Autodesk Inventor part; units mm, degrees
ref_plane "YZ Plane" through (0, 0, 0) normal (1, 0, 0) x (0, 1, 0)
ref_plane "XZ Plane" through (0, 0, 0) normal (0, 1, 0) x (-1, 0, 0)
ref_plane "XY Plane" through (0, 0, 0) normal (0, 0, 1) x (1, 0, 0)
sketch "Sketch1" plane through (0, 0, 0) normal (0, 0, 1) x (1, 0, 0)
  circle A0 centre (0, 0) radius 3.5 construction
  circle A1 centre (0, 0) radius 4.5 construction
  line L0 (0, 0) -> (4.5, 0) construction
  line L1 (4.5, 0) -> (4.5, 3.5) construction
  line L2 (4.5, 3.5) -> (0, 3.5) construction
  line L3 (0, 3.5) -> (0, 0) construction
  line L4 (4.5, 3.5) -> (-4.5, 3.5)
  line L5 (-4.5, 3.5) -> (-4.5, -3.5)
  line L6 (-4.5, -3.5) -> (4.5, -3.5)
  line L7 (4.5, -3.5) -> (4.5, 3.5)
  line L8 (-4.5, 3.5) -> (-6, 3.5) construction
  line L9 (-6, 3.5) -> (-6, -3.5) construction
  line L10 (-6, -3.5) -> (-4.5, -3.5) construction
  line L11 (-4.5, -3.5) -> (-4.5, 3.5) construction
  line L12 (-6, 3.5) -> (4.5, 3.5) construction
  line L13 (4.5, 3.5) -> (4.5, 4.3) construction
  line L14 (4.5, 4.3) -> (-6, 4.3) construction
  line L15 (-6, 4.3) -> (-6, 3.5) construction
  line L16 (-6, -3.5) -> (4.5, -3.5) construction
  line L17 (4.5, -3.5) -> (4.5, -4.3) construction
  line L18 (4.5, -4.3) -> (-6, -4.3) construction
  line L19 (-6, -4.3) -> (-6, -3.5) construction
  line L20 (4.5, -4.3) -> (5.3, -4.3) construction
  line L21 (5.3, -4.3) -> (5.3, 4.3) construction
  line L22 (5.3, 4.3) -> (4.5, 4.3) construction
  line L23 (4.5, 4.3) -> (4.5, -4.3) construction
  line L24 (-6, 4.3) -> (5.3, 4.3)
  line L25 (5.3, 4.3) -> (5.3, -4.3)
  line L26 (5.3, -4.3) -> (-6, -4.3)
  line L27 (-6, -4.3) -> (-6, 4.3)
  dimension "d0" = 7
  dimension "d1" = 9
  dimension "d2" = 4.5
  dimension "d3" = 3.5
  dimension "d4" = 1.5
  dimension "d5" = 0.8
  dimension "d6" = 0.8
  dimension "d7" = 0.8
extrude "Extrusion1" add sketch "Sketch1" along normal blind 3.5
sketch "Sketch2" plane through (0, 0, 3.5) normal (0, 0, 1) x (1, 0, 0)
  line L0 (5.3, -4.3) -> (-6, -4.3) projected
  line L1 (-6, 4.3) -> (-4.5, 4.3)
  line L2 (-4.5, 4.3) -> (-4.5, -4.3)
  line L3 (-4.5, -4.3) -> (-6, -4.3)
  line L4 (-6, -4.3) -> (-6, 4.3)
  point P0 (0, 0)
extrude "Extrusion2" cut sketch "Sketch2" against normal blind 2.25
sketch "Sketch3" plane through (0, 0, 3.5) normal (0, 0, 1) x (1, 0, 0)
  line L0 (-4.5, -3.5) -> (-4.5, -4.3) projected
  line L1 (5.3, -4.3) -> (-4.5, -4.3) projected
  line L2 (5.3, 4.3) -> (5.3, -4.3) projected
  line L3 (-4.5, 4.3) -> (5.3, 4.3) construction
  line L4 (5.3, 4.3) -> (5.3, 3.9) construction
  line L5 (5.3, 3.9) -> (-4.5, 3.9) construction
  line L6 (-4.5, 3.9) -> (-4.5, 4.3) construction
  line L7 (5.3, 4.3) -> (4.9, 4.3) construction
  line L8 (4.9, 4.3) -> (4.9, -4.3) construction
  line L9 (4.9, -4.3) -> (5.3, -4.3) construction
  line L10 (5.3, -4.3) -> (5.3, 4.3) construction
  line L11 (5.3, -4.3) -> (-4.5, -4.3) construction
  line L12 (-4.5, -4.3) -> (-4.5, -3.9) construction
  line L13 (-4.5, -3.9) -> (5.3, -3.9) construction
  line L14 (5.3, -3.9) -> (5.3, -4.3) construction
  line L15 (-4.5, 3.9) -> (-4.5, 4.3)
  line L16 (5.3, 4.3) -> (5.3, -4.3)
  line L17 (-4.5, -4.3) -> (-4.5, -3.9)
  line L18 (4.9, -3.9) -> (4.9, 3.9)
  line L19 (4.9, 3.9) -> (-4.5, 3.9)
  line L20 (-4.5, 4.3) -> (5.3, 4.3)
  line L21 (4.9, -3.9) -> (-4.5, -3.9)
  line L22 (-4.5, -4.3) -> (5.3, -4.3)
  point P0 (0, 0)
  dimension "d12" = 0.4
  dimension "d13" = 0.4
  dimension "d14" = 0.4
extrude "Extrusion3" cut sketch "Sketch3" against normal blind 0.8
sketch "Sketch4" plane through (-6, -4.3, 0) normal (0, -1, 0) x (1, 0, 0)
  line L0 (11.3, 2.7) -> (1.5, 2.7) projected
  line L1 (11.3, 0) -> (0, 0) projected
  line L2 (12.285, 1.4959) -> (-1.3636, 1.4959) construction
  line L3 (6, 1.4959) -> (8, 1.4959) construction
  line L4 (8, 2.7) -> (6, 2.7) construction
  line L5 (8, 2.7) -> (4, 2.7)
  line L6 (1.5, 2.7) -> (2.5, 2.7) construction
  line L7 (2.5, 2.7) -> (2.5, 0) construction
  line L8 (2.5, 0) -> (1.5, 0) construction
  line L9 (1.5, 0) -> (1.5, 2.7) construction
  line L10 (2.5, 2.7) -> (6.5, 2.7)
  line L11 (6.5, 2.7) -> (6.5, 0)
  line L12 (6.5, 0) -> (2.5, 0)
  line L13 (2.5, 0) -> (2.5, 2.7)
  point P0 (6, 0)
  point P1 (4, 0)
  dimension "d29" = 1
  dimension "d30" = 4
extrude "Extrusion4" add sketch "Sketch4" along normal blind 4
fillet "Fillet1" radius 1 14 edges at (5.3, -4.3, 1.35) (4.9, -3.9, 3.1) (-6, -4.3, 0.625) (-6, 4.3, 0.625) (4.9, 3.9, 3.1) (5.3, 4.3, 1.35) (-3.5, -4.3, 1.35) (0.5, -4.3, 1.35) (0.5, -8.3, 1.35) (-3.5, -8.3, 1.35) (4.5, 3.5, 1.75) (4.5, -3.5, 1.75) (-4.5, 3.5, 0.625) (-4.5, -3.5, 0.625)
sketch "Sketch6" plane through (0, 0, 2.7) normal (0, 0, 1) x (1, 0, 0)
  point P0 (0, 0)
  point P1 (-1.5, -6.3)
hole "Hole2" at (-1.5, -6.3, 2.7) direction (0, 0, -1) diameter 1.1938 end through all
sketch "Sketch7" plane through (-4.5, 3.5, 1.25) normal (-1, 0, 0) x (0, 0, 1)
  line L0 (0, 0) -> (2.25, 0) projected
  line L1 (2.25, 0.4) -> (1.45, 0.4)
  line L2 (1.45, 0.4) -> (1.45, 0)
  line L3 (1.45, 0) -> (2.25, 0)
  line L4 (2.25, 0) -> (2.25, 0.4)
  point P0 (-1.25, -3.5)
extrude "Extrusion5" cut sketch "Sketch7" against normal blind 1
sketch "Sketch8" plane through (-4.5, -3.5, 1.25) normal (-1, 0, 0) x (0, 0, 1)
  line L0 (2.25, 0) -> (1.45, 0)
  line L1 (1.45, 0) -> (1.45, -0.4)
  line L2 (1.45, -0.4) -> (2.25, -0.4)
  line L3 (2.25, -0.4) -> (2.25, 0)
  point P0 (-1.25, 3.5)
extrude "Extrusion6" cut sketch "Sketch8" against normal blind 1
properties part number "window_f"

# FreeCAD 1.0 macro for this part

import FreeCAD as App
import Part
import Sketcher
from FreeCAD import Vector
Q = App.Units.Quantity


def edges_at(feature, points):
    """Names of the edges that pass closest to the given points."""
    edges = feature.Shape.Edges
    near = lambda p: min(range(len(edges)), key=lambda i: edges[i].distToShape(Part.Vertex(*p))[0])
    return sorted({f"Edge{near(p) + 1}" for p in points})

doc = App.newDocument("Part")
body = doc.addObject("PartDesign::Body", "Body")

sketch1 = body.newObject("Sketcher::SketchObject", "Sketch")
sketch1.AttachmentSupport = (doc.getObject("XY_Plane"), [""])
sketch1.MapMode = "FlatFace"
sketch1.addGeometry(Part.LineSegment(Vector(5.3, 4.3, 0), Vector(-6, 4.3, 0)), False)
sketch1.addGeometry(Part.LineSegment(Vector(-6, 4.3, 0), Vector(-6, -4.3, 0)), False)
sketch1.addGeometry(Part.LineSegment(Vector(-6, -4.3, 0), Vector(5.3, -4.3, 0)), False)
sketch1.addGeometry(Part.LineSegment(Vector(5.3, -4.3, 0), Vector(5.3, 4.3, 0)), False)
sketch1.addGeometry(Part.LineSegment(Vector(-4.5, 3.5, 0), Vector(4.5, 3.5, 0)), False)
sketch1.addGeometry(Part.LineSegment(Vector(4.5, 3.5, 0), Vector(4.5, -3.5, 0)), False)
sketch1.addGeometry(Part.LineSegment(Vector(4.5, -3.5, 0), Vector(-4.5, -3.5, 0)), False)
sketch1.addGeometry(Part.LineSegment(Vector(-4.5, -3.5, 0), Vector(-4.5, 3.5, 0)), False)
sketch1.addConstraint(Sketcher.Constraint("Coincident", 0, 2, 1, 1))
sketch1.addConstraint(Sketcher.Constraint("Coincident", 1, 2, 2, 1))
sketch1.addConstraint(Sketcher.Constraint("Coincident", 2, 2, 3, 1))
sketch1.addConstraint(Sketcher.Constraint("Coincident", 3, 2, 0, 1))
sketch1.addConstraint(Sketcher.Constraint("Coincident", 4, 2, 5, 1))
sketch1.addConstraint(Sketcher.Constraint("Coincident", 5, 2, 6, 1))
sketch1.addConstraint(Sketcher.Constraint("Coincident", 6, 2, 7, 1))
sketch1.addConstraint(Sketcher.Constraint("Coincident", 7, 2, 4, 1))
sketch1.addConstraint(Sketcher.Constraint("Horizontal", 0))
sketch1.addConstraint(Sketcher.Constraint("Vertical", 1))
sketch1.addConstraint(Sketcher.Constraint("Horizontal", 2))
sketch1.addConstraint(Sketcher.Constraint("Vertical", 3))
sketch1.addConstraint(Sketcher.Constraint("Horizontal", 4))
sketch1.addConstraint(Sketcher.Constraint("Vertical", 5))
sketch1.addConstraint(Sketcher.Constraint("Horizontal", 6))
sketch1.addConstraint(Sketcher.Constraint("Vertical", 7))
sketch1.addConstraint(Sketcher.Constraint("Symmetric", 4, 2, 6, 2, -1, 1))
sketch1.addConstraint(Sketcher.Constraint("DistanceX", 4, 1, 4, 2, Q("9 mm")))
sketch1.addConstraint(Sketcher.Constraint("DistanceY", 5, 2, 5, 1, Q("7 mm")))
sketch1.addConstraint(Sketcher.Constraint("DistanceX", 4, 2, 3, 2, Q("0.8 mm")))
sketch1.addConstraint(Sketcher.Constraint("DistanceY", 4, 2, 3, 2, Q("0.8 mm")))
sketch1.addConstraint(Sketcher.Constraint("DistanceY", 2, 2, 5, 2, Q("0.8 mm")))
sketch1.addConstraint(Sketcher.Constraint("DistanceX", 1, 2, 6, 2, Q("1.5 mm")))
pad1 = body.newObject("PartDesign::Pad", "Pad")
pad1.Profile = sketch1
pad1.Length = 3.5

sketch2 = body.newObject("Sketcher::SketchObject", "Sketch001")
sketch2.AttachmentSupport = (doc.getObject("XY_Plane"), [""])
sketch2.MapMode = "FlatFace"
sketch2.AttachmentOffset = App.Placement(Vector(0, 0, 3.5), App.Rotation())
sketch2.addGeometry(Part.LineSegment(Vector(-6, -4.3, 0), Vector(-4.5, -4.3, 0)), False)
sketch2.addGeometry(Part.LineSegment(Vector(-4.5, -4.3, 0), Vector(-4.5, 4.3, 0)), False)
sketch2.addGeometry(Part.LineSegment(Vector(-4.5, 4.3, 0), Vector(-6, 4.3, 0)), False)
sketch2.addGeometry(Part.LineSegment(Vector(-6, 4.3, 0), Vector(-6, -4.3, 0)), False)
sketch2.addConstraint(Sketcher.Constraint("Coincident", 0, 2, 1, 1))
sketch2.addConstraint(Sketcher.Constraint("Coincident", 1, 2, 2, 1))
sketch2.addConstraint(Sketcher.Constraint("Coincident", 2, 2, 3, 1))
sketch2.addConstraint(Sketcher.Constraint("Coincident", 3, 2, 0, 1))
sketch2.addConstraint(Sketcher.Constraint("Horizontal", 0))
sketch2.addConstraint(Sketcher.Constraint("Vertical", 1))
sketch2.addConstraint(Sketcher.Constraint("Horizontal", 2))
sketch2.addConstraint(Sketcher.Constraint("Vertical", 3))
sketch2.addConstraint(Sketcher.Constraint("DistanceX", 0, 1, 0, 2, Q("1.5 mm")))
sketch2.addConstraint(Sketcher.Constraint("DistanceY", 1, 1, 1, 2, Q("8.6 mm")))
sketch2.addConstraint(Sketcher.Constraint("DistanceX", 2, 2, -1, 1, Q("6 mm")))
sketch2.addConstraint(Sketcher.Constraint("DistanceY", 0, 2, -1, 1, Q("4.3 mm")))
pocket1 = body.newObject("PartDesign::Pocket", "Pocket")
pocket1.Profile = sketch2
pocket1.Length = 2.25

sketch3 = body.newObject("Sketcher::SketchObject", "Sketch002")
sketch3.AttachmentSupport = (doc.getObject("XY_Plane"), [""])
sketch3.MapMode = "FlatFace"
sketch3.AttachmentOffset = App.Placement(Vector(0, 0, 3.5), App.Rotation())
sketch3.addGeometry(Part.LineSegment(Vector(4.9, -3.9, 0), Vector(-4.5, -3.9, 0)), False)
sketch3.addGeometry(Part.LineSegment(Vector(-4.5, -3.9, 0), Vector(-4.5, -4.3, 0)), False)
sketch3.addGeometry(Part.LineSegment(Vector(-4.5, -4.3, 0), Vector(5.3, -4.3, 0)), False)
sketch3.addGeometry(Part.LineSegment(Vector(5.3, -4.3, 0), Vector(5.3, 4.3, 0)), False)
sketch3.addGeometry(Part.LineSegment(Vector(5.3, 4.3, 0), Vector(-4.5, 4.3, 0)), False)
sketch3.addGeometry(Part.LineSegment(Vector(-4.5, 4.3, 0), Vector(-4.5, 3.9, 0)), False)
sketch3.addGeometry(Part.LineSegment(Vector(-4.5, 3.9, 0), Vector(4.9, 3.9, 0)), False)
sketch3.addGeometry(Part.LineSegment(Vector(4.9, 3.9, 0), Vector(4.9, -3.9, 0)), False)
sketch3.addConstraint(Sketcher.Constraint("Coincident", 0, 2, 1, 1))
sketch3.addConstraint(Sketcher.Constraint("Coincident", 1, 2, 2, 1))
sketch3.addConstraint(Sketcher.Constraint("Coincident", 2, 2, 3, 1))
sketch3.addConstraint(Sketcher.Constraint("Coincident", 3, 2, 4, 1))
sketch3.addConstraint(Sketcher.Constraint("Coincident", 4, 2, 5, 1))
sketch3.addConstraint(Sketcher.Constraint("Coincident", 5, 2, 6, 1))
sketch3.addConstraint(Sketcher.Constraint("Coincident", 6, 2, 7, 1))
sketch3.addConstraint(Sketcher.Constraint("Coincident", 7, 2, 0, 1))
sketch3.addConstraint(Sketcher.Constraint("Horizontal", 0))
sketch3.addConstraint(Sketcher.Constraint("Vertical", 1))
sketch3.addConstraint(Sketcher.Constraint("Horizontal", 2))
sketch3.addConstraint(Sketcher.Constraint("Vertical", 3))
sketch3.addConstraint(Sketcher.Constraint("Horizontal", 4))
sketch3.addConstraint(Sketcher.Constraint("Vertical", 5))
sketch3.addConstraint(Sketcher.Constraint("Horizontal", 6))
sketch3.addConstraint(Sketcher.Constraint("Vertical", 7))
sketch3.addConstraint(Sketcher.Constraint("Symmetric", 1, 2, 4, 2, -1))
sketch3.addConstraint(Sketcher.Constraint("Equal", 1, 5))
sketch3.addConstraint(Sketcher.Constraint("DistanceY", 1, 2, 1, 1, Q("0.4 mm")))
sketch3.addConstraint(Sketcher.Constraint("DistanceX", 6, 2, 3, 2, Q("0.4 mm")))
sketch3.addConstraint(Sketcher.Constraint("DistanceX", 0, 2, 0, 1, Q("9.4 mm")))
sketch3.addConstraint(Sketcher.Constraint("DistanceY", 3, 1, 3, 2, Q("8.6 mm")))
sketch3.addConstraint(Sketcher.Constraint("DistanceX", 0, 2, -1, 1, Q("4.5 mm")))
pocket2 = body.newObject("PartDesign::Pocket", "Pocket001")
pocket2.Profile = sketch3
pocket2.Length = 0.8

sketch4 = body.newObject("Sketcher::SketchObject", "Sketch003")
sketch4.AttachmentSupport = (doc.getObject("XZ_Plane"), [""])
sketch4.MapMode = "FlatFace"
sketch4.AttachmentOffset = App.Placement(Vector(0, 0, 4.3), App.Rotation())
sketch4.addGeometry(Part.LineSegment(Vector(0.5, 0, 0), Vector(0.5, 2.7, 0)), False)
sketch4.addGeometry(Part.LineSegment(Vector(0.5, 2.7, 0), Vector(-3.5, 2.7, 0)), False)
sketch4.addGeometry(Part.LineSegment(Vector(-3.5, 2.7, 0), Vector(-3.5, 0, 0)), False)
sketch4.addGeometry(Part.LineSegment(Vector(-3.5, 0, 0), Vector(0.5, 0, 0)), False)
sketch4.addConstraint(Sketcher.Constraint("Coincident", 0, 2, 1, 1))
sketch4.addConstraint(Sketcher.Constraint("Coincident", 1, 2, 2, 1))
sketch4.addConstraint(Sketcher.Constraint("Coincident", 2, 2, 3, 1))
sketch4.addConstraint(Sketcher.Constraint("Coincident", 3, 2, 0, 1))
sketch4.addConstraint(Sketcher.Constraint("Vertical", 0))
sketch4.addConstraint(Sketcher.Constraint("Horizontal", 1))
sketch4.addConstraint(Sketcher.Constraint("Vertical", 2))
sketch4.addConstraint(Sketcher.Constraint("Horizontal", 3))
sketch4.addConstraint(Sketcher.Constraint("PointOnObject", 2, 2, -1))
sketch4.addConstraint(Sketcher.Constraint("DistanceX", 1, 2, 1, 1, Q("4 mm")))
sketch4.addConstraint(Sketcher.Constraint("DistanceY", 0, 1, 0, 2, Q("2.7 mm")))
sketch4.addConstraint(Sketcher.Constraint("DistanceX", -1, 1, 0, 2, Q("0.5 mm")))
pad2 = body.newObject("PartDesign::Pad", "Pad001")
pad2.Profile = sketch4
pad2.Length = 4
doc.recompute()

fillet = body.newObject("PartDesign::Fillet", "Fillet")
fillet.Base = (pad2, edges_at(pad2, [
    (5.3, -4.3, 1.35),
    (4.9, -3.9, 3.1),
    (-6, -4.3, 0.625),
    (-6, 4.3, 0.625),
    (4.9, 3.9, 3.1),
    (5.3, 4.3, 1.35),
    (-3.5, -4.3, 1.35),
    (0.5, -4.3, 1.35),
    (0.5, -8.3, 1.35),
    (-3.5, -8.3, 1.35),
    (4.5, 3.5, 1.75),
    (4.5, -3.5, 1.75),
    (-4.5, 3.5, 0.625),
    (-4.5, -3.5, 0.625),
]))
fillet.Radius = 1

sketch5 = body.newObject("Sketcher::SketchObject", "Sketch004")
sketch5.AttachmentSupport = (doc.getObject("XY_Plane"), [""])
sketch5.MapMode = "FlatFace"
sketch5.AttachmentOffset = App.Placement(Vector(0, 0, 2.7), App.Rotation())
sketch5.addGeometry(Part.Circle(Vector(-1.5, -6.3, 0), Vector(0, 0, 1), 0.5969), False)
sketch5.addConstraint(Sketcher.Constraint("Diameter", 0, Q("1.1938 mm")))
sketch5.addConstraint(Sketcher.Constraint("DistanceX", 0, 3, -1, 1, Q("1.5 mm")))
sketch5.addConstraint(Sketcher.Constraint("DistanceY", 0, 3, -1, 1, Q("6.3 mm")))
doc.recompute()
hole = body.newObject("PartDesign::Hole", "Hole")
hole.Profile = sketch5
hole.ThreadType = "None"
hole.Diameter = 1.1938
hole.DepthType = "ThroughAll"

sketch6 = body.newObject("Sketcher::SketchObject", "Sketch005")
sketch6.AttachmentSupport = (doc.getObject("YZ_Plane"), [""])
sketch6.MapMode = "FlatFace"
sketch6.AttachmentOffset = App.Placement(Vector(0, 0, -4.5), App.Rotation())
sketch6.addGeometry(Part.LineSegment(Vector(3.9, 2.7, 0), Vector(3.5, 2.7, 0)), False)
sketch6.addGeometry(Part.LineSegment(Vector(3.5, 2.7, 0), Vector(3.5, 3.5, 0)), False)
sketch6.addGeometry(Part.LineSegment(Vector(3.5, 3.5, 0), Vector(3.9, 3.5, 0)), False)
sketch6.addGeometry(Part.LineSegment(Vector(3.9, 3.5, 0), Vector(3.9, 2.7, 0)), False)
sketch6.addConstraint(Sketcher.Constraint("Coincident", 0, 2, 1, 1))
sketch6.addConstraint(Sketcher.Constraint("Coincident", 1, 2, 2, 1))
sketch6.addConstraint(Sketcher.Constraint("Coincident", 2, 2, 3, 1))
sketch6.addConstraint(Sketcher.Constraint("Coincident", 3, 2, 0, 1))
sketch6.addConstraint(Sketcher.Constraint("Horizontal", 0))
sketch6.addConstraint(Sketcher.Constraint("Vertical", 1))
sketch6.addConstraint(Sketcher.Constraint("Horizontal", 2))
sketch6.addConstraint(Sketcher.Constraint("Vertical", 3))
sketch6.addConstraint(Sketcher.Constraint("DistanceX", 0, 2, 0, 1, Q("0.4 mm")))
sketch6.addConstraint(Sketcher.Constraint("DistanceY", 1, 1, 1, 2, Q("0.8 mm")))
sketch6.addConstraint(Sketcher.Constraint("DistanceX", -1, 1, 0, 2, Q("3.5 mm")))
sketch6.addConstraint(Sketcher.Constraint("DistanceY", -1, 1, 0, 2, Q("2.7 mm")))
pocket3 = body.newObject("PartDesign::Pocket", "Pocket002")
pocket3.Profile = sketch6
pocket3.Length = 1
pocket3.Reversed = True

sketch7 = body.newObject("Sketcher::SketchObject", "Sketch006")
sketch7.AttachmentSupport = (doc.getObject("YZ_Plane"), [""])
sketch7.MapMode = "FlatFace"
sketch7.AttachmentOffset = App.Placement(Vector(0, 0, -4.5), App.Rotation())
sketch7.addGeometry(Part.LineSegment(Vector(-3.9, 3.5, 0), Vector(-3.5, 3.5, 0)), False)
sketch7.addGeometry(Part.LineSegment(Vector(-3.5, 3.5, 0), Vector(-3.5, 2.7, 0)), False)
sketch7.addGeometry(Part.LineSegment(Vector(-3.5, 2.7, 0), Vector(-3.9, 2.7, 0)), False)
sketch7.addGeometry(Part.LineSegment(Vector(-3.9, 2.7, 0), Vector(-3.9, 3.5, 0)), False)
sketch7.addConstraint(Sketcher.Constraint("Coincident", 0, 2, 1, 1))
sketch7.addConstraint(Sketcher.Constraint("Coincident", 1, 2, 2, 1))
sketch7.addConstraint(Sketcher.Constraint("Coincident", 2, 2, 3, 1))
sketch7.addConstraint(Sketcher.Constraint("Coincident", 3, 2, 0, 1))
sketch7.addConstraint(Sketcher.Constraint("Horizontal", 0))
sketch7.addConstraint(Sketcher.Constraint("Vertical", 1))
sketch7.addConstraint(Sketcher.Constraint("Horizontal", 2))
sketch7.addConstraint(Sketcher.Constraint("Vertical", 3))
sketch7.addConstraint(Sketcher.Constraint("DistanceX", 0, 1, 0, 2, Q("0.4 mm")))
sketch7.addConstraint(Sketcher.Constraint("DistanceY", 1, 2, 1, 1, Q("0.8 mm")))
sketch7.addConstraint(Sketcher.Constraint("DistanceX", 0, 2, -1, 1, Q("3.5 mm")))
sketch7.addConstraint(Sketcher.Constraint("DistanceY", -1, 1, 0, 2, Q("3.5 mm")))
pocket4 = body.newObject("PartDesign::Pocket", "Pocket003")
pocket4.Profile = sketch7
pocket4.Length = 1
pocket4.Reversed = True

doc.recompute()
